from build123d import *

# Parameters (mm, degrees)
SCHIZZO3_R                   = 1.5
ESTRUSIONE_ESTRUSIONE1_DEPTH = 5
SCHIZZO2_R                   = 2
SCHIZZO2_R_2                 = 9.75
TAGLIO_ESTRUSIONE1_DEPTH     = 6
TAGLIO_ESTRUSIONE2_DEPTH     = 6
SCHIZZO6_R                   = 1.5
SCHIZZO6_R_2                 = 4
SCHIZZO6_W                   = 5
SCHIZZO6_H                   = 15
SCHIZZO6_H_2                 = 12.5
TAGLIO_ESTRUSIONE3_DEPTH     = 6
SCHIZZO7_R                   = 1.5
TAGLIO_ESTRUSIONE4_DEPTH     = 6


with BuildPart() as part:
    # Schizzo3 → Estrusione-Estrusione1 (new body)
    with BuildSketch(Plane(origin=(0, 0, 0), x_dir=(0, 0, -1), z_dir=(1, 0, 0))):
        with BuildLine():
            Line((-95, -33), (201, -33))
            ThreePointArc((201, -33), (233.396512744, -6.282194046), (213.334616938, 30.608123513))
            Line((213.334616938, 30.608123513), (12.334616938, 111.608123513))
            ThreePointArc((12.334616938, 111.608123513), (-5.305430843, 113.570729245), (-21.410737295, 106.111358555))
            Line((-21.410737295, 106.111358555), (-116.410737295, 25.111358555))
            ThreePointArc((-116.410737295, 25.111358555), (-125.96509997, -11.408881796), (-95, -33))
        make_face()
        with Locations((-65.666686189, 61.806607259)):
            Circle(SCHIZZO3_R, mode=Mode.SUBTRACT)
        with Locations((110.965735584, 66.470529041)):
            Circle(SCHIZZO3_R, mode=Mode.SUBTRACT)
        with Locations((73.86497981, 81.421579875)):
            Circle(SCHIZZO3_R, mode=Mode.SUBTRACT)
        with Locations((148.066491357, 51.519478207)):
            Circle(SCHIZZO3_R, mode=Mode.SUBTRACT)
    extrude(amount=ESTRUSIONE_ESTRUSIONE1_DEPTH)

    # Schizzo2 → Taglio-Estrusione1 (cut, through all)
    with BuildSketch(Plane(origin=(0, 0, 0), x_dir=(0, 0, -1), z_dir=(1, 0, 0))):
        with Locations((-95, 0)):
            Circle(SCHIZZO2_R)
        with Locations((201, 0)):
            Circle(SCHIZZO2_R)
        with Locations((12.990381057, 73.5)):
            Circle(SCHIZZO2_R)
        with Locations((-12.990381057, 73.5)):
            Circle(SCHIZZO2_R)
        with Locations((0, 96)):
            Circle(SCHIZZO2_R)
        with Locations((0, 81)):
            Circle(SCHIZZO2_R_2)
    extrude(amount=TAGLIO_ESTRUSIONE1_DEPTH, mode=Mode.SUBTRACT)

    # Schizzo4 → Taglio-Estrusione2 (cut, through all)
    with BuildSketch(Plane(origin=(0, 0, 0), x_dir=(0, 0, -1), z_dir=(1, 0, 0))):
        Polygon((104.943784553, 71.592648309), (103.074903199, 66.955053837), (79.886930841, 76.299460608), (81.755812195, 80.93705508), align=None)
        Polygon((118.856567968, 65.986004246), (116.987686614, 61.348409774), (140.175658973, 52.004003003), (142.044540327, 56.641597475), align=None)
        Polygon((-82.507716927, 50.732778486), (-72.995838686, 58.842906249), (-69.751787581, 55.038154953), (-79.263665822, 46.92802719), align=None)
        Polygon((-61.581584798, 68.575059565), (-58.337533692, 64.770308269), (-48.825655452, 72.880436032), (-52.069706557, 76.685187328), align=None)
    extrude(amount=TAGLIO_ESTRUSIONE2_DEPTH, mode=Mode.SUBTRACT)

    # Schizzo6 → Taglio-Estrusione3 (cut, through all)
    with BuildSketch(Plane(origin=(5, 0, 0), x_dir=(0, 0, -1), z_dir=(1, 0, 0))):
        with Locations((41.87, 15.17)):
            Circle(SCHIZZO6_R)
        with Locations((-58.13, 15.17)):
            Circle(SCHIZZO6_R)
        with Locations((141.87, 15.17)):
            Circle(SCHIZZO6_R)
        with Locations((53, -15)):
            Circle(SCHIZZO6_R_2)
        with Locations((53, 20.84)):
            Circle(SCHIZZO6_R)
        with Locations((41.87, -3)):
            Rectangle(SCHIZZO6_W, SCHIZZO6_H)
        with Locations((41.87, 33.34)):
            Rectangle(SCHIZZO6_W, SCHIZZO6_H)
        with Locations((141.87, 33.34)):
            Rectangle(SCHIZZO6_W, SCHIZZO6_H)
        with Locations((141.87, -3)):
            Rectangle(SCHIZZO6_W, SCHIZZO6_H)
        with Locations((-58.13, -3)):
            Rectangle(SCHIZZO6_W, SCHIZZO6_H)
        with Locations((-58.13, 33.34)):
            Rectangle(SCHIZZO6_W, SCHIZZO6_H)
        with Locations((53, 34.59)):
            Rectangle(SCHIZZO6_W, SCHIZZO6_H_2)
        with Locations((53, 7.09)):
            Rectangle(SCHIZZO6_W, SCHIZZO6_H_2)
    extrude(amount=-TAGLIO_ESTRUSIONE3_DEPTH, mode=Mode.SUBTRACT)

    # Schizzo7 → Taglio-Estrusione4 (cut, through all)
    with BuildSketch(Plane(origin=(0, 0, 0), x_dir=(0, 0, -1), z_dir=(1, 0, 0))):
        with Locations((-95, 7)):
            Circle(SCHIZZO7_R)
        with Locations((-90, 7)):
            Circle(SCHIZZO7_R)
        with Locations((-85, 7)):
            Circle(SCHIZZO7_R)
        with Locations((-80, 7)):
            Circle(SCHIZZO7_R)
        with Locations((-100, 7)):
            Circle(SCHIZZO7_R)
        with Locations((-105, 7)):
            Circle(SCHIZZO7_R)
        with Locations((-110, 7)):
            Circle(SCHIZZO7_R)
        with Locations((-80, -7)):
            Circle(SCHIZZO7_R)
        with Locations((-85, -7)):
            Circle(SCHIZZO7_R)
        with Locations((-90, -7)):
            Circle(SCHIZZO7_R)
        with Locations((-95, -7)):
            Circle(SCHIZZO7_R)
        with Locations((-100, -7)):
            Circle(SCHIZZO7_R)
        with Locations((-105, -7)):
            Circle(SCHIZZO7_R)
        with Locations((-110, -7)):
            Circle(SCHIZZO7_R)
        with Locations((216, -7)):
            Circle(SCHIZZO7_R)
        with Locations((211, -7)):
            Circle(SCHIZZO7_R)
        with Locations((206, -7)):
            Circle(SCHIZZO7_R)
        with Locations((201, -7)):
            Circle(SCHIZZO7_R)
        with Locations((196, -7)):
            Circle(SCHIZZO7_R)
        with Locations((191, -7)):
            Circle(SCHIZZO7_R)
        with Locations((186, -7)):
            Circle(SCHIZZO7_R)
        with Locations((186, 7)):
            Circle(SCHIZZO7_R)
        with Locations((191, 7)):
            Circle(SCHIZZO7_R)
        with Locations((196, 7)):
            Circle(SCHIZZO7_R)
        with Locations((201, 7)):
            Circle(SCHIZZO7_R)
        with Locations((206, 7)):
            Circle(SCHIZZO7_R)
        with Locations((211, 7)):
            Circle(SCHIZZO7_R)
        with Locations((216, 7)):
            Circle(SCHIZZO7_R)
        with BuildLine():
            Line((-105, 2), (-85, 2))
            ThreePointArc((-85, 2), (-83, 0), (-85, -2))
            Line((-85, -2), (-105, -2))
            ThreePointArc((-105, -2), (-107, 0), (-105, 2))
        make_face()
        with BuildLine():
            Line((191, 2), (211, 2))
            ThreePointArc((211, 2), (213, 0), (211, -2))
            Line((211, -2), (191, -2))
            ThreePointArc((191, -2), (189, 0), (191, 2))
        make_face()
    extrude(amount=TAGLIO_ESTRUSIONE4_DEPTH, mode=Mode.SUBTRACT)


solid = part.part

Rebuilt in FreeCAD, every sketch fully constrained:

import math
import FreeCAD as App
import Part
import Sketcher
Q = App.Units.Quantity


def add_polygon(sketch, points):
    """Adds a closed chain of lines whose ends are joined by coincident constraints."""
    first, n = sketch.GeometryCount, len(points)
    for a, b in zip(points, points[1:] + points[:1]):
        sketch.addGeometry(Part.LineSegment(App.Vector(*a, 0), App.Vector(*b, 0)), False)
    for i in range(n):
        sketch.addConstraint(Sketcher.Constraint("Coincident", first + i, 2, first + (i + 1) % n, 1))

doc = App.newDocument("Part")
body = doc.addObject("PartDesign::Body", "Body")

# Sketch on YZ plane
sketch1 = body.newObject("Sketcher::SketchObject", "Sketch")
sketch1.AttachmentSupport = (doc.getObject("YZ_Plane"), [""])
sketch1.MapMode = "FlatFace"
sketch1.addGeometry([
    Part.LineSegment(App.Vector(-33, 95, 0), App.Vector(-33, -201, 0)),  # 0
    Part.ArcOfCircle(Part.Circle(App.Vector(0, -201, 0), App.Vector(0, 0, 1), 33), math.radians(180), math.radians(338)),  # 1
    Part.LineSegment(App.Vector(30.6, -213.3, 0), App.Vector(111.6, -12.3, 0)),  # 2
    Part.ArcOfCircle(Part.Circle(App.Vector(81, 0, 0), App.Vector(0, 0, 1), 33), math.radians(-22), math.radians(40)),  # 3
    Part.LineSegment(App.Vector(106.1, 21.4, 0), App.Vector(25.1, 116.4, 0)),  # 4
    Part.ArcOfCircle(Part.Circle(App.Vector(0, 95, 0), App.Vector(0, 0, 1), 33), math.radians(40), math.radians(180)),  # 5
    Part.Circle(App.Vector(61.8, 65.7, 0), App.Vector(0, 0, 1), 1.5),  # 6
    Part.Circle(App.Vector(51.5, -148.1, 0), App.Vector(0, 0, 1), 1.5),  # 7
    Part.Circle(App.Vector(66.5, -111, 0), App.Vector(0, 0, 1), 1.5),  # 8
    Part.Circle(App.Vector(81.4, -73.9, 0), App.Vector(0, 0, 1), 1.5),  # 9
], False)
sketch1.addConstraint([
    Sketcher.Constraint("Tangent", 0, 2, 1, 1),
    Sketcher.Constraint("Tangent", 1, 2, 2, 1),
    Sketcher.Constraint("Tangent", 2, 2, 3, 1),
    Sketcher.Constraint("Tangent", 3, 2, 4, 1),
    Sketcher.Constraint("Tangent", 4, 2, 5, 1),
    Sketcher.Constraint("Tangent", 5, 2, 0, 1),
    Sketcher.Constraint("Vertical", 0),
    Sketcher.Constraint("Equal", 1, 3),
    Sketcher.Constraint("Equal", 3, 5),
    Sketcher.Constraint("Equal", 6, 7),
    Sketcher.Constraint("Equal", 7, 8),
    Sketcher.Constraint("Equal", 8, 9),
    Sketcher.Constraint("PointOnObject", 1, 3, -2),
    Sketcher.Constraint("PointOnObject", 3, 3, -1),
    Sketcher.Constraint("Diameter", 6, Q("3 mm")),
    Sketcher.Constraint("Radius", 1, Q("33 mm")),
    Sketcher.Constraint("DistanceY", 0, 2, 0, 1, Q("296 mm")),
    Sketcher.Constraint("DistanceY", 1, 3, -1, 1, Q("201 mm")),
    Sketcher.Constraint("DistanceX", -1, 1, 3, 3, Q("81 mm")),
    Sketcher.Constraint("DistanceX", 7, 3, 9, 3, Q("29.902102 mm")),
    Sketcher.Constraint("DistanceX", -1, 1, 7, 3, Q("51.519478 mm")),
    Sketcher.Constraint("DistanceY", 7, 3, -1, 1, Q("148.066491 mm")),
    Sketcher.Constraint("DistanceX", -1, 1, 8, 3, Q("66.470529 mm")),
    Sketcher.Constraint("DistanceY", 9, 3, -1, 1, Q("73.86498 mm")),
    Sketcher.Constraint("DistanceX", 7, 3, 6, 3, Q("10.287129 mm")),
    Sketcher.Constraint("DistanceY", 8, 3, 6, 3, Q("176.632422 mm")),
    Sketcher.Constraint("DistanceY", 1, 2, 8, 3, Q("102.368881 mm")),
])
pad1 = body.newObject("PartDesign::Pad", "Pad")
pad1.Profile = sketch1
pad1.Length = 5

# Sketch on YZ plane
sketch2 = body.newObject("Sketcher::SketchObject", "Sketch001")
sketch2.AttachmentSupport = (doc.getObject("YZ_Plane"), [""])
sketch2.MapMode = "FlatFace"
sketch2.addGeometry([
    Part.Circle(App.Vector(0, 95, 0), App.Vector(0, 0, 1), 2),  # 0
    Part.Circle(App.Vector(0, -201, 0), App.Vector(0, 0, 1), 2),  # 1
    Part.Circle(App.Vector(73.5, -13, 0), App.Vector(0, 0, 1), 2),  # 2
    Part.Circle(App.Vector(73.5, 13, 0), App.Vector(0, 0, 1), 2),  # 3
    Part.Circle(App.Vector(96, 0, 0), App.Vector(0, 0, 1), 2),  # 4
    Part.Circle(App.Vector(81, 0, 0), App.Vector(0, 0, 1), 9.8),  # 5
], False)
sketch2.addConstraint([
    Sketcher.Constraint("Equal", 0, 1),
    Sketcher.Constraint("Equal", 1, 2),
    Sketcher.Constraint("Equal", 2, 3),
    Sketcher.Constraint("Equal", 3, 4),
    Sketcher.Constraint("Symmetric", 2, 3, 3, 3, -1),
    Sketcher.Constraint("PointOnObject", 0, 3, -2),
    Sketcher.Constraint("PointOnObject", 1, 3, -2),
    Sketcher.Constraint("PointOnObject", 4, 3, -1),
    Sketcher.Constraint("PointOnObject", 5, 3, -1),
    Sketcher.Constraint("Diameter", 0, Q("4 mm")),
    Sketcher.Constraint("Diameter", 5, Q("19.5 mm")),
    Sketcher.Constraint("DistanceY", -1, 1, 0, 3, Q("95 mm")),
    Sketcher.Constraint("DistanceY", 1, 3, -1, 1, Q("201 mm")),
    Sketcher.Constraint("DistanceX", -1, 1, 4, 3, Q("96 mm")),
    Sketcher.Constraint("DistanceX", -1, 1, 5, 3, Q("81 mm")),
    Sketcher.Constraint("DistanceX", -1, 1, 2, 3, Q("73.5 mm")),
    Sketcher.Constraint("DistanceY", 2, 3, -1, 1, Q("12.990381 mm")),
])
pocket1 = body.newObject("PartDesign::Pocket", "Pocket")
pocket1.Profile = sketch2
pocket1.Type = "ThroughAll"
pocket1.Reversed = True

# Sketch on YZ plane
sketch3 = body.newObject("Sketcher::SketchObject", "Sketch002")
sketch3.AttachmentSupport = (doc.getObject("YZ_Plane"), [""])
sketch3.MapMode = "FlatFace"
add_polygon(sketch3, [(67, -103.1), (71.6, -104.9), (80.9, -81.8), (76.3, -79.9)])  # lines 0-3
add_polygon(sketch3, [(66, -118.9), (61.3, -117), (52, -140.2), (56.6, -142)])  # lines 4-7
add_polygon(sketch3, [(58.8, 73), (50.7, 82.5), (46.9, 79.3), (55, 69.8)])  # lines 8-11
add_polygon(sketch3, [(68.6, 61.6), (64.8, 58.3), (72.9, 48.8), (76.7, 52.1)])  # lines 12-15
sketch3.addConstraint([
    Sketcher.Constraint("Perpendicular", 0, 1),
    Sketcher.Constraint("Perpendicular", 1, 2),
    Sketcher.Constraint("Perpendicular", 2, 3),
    Sketcher.Constraint("Perpendicular", 3, 4),
    Sketcher.Constraint("Perpendicular", 4, 5),
    Sketcher.Constraint("Perpendicular", 5, 6),
    Sketcher.Constraint("Perpendicular", 6, 7),
    Sketcher.Constraint("Perpendicular", 8, 9),
    Sketcher.Constraint("Perpendicular", 9, 10),
    Sketcher.Constraint("Perpendicular", 10, 11),
    Sketcher.Constraint("Parallel", 11, 12),
    Sketcher.Constraint("Perpendicular", 12, 13),
    Sketcher.Constraint("Perpendicular", 13, 14),
    Sketcher.Constraint("Perpendicular", 14, 15),
    Sketcher.Constraint("Equal", 2, 4),
    Sketcher.Constraint("Equal", 3, 5),
    Sketcher.Constraint("Equal", 6, 9),
    Sketcher.Constraint("Equal", 11, 12),
    Sketcher.Constraint("Equal", 10, 13),
    Sketcher.Constraint("Distance", 0, Q("5 mm")),
    Sketcher.Constraint("Distance", 1, Q("25 mm")),
    Sketcher.Constraint("Distance", 8, Q("12.5 mm")),
    Sketcher.Constraint("DistanceX", 3, 2, 1, 2, Q("13.982001 mm")),
    Sketcher.Constraint("DistanceY", 0, 2, 8, 2, Q("187.451501 mm")),
    Sketcher.Constraint("DistanceX", 10, 2, 1, 2, Q("25.8989 mm")),
    Sketcher.Constraint("DistanceY", 1, 2, 10, 2, Q("151.5076 mm")),
    Sketcher.Constraint("DistanceX", -1, 1, 0, 2, Q("71.592648 mm")),
    Sketcher.Constraint("DistanceY", 2, 2, -1, 1, Q("79.886931 mm")),
    Sketcher.Constraint("DistanceX", -1, 1, 4, 2, Q("61.34841 mm")),
    Sketcher.Constraint("DistanceY", 5, 2, -1, 1, Q("140.175659 mm")),
    Sketcher.Constraint("DistanceX", -1, 1, 12, 2, Q("64.770308 mm")),
    Sketcher.Constraint("DistanceY", 13, 2, 9, 2, Q("30.43801 mm")),
])
pocket2 = body.newObject("PartDesign::Pocket", "Pocket001")
pocket2.Profile = sketch3
pocket2.Type = "ThroughAll"
pocket2.Reversed = True

# Sketch on YZ plane
sketch4 = body.newObject("Sketcher::SketchObject", "Sketch003")
sketch4.AttachmentSupport = (doc.getObject("YZ_Plane"), [""])
sketch4.MapMode = "FlatFace"
sketch4.AttachmentOffset = App.Placement(App.Vector(0, 0, 5), App.Rotation())
sketch4.addGeometry(Part.Circle(App.Vector(15.2, -41.9, 0), App.Vector(0, 0, 1), 1.5), False)  # 0
sketch4.addGeometry(Part.Circle(App.Vector(15.2, 58.1, 0), App.Vector(0, 0, 1), 1.5), False)  # 1
sketch4.addGeometry(Part.Circle(App.Vector(15.2, -141.9, 0), App.Vector(0, 0, 1), 1.5), False)  # 2
sketch4.addGeometry(Part.Circle(App.Vector(-15, -53, 0), App.Vector(0, 0, 1), 4), False)  # 3
sketch4.addGeometry(Part.Circle(App.Vector(20.8, -53, 0), App.Vector(0, 0, 1), 1.5), False)  # 4
add_polygon(sketch4, [(4.5, -39.4), (-10.5, -39.4), (-10.5, -44.4), (4.5, -44.4)])  # lines 5-8
add_polygon(sketch4, [(40.8, -39.4), (25.8, -39.4), (25.8, -44.4), (40.8, -44.4)])  # lines 9-12
add_polygon(sketch4, [(40.8, -139.4), (25.8, -139.4), (25.8, -144.4), (40.8, -144.4)])  # lines 13-16
add_polygon(sketch4, [(4.5, -139.4), (-10.5, -139.4), (-10.5, -144.4), (4.5, -144.4)])  # lines 17-20
add_polygon(sketch4, [(4.5, 60.6), (-10.5, 60.6), (-10.5, 55.6), (4.5, 55.6)])  # lines 21-24
add_polygon(sketch4, [(40.8, 60.6), (25.8, 60.6), (25.8, 55.6), (40.8, 55.6)])  # lines 25-28
add_polygon(sketch4, [(40.8, -50.5), (28.3, -50.5), (28.3, -55.5), (40.8, -55.5)])  # lines 29-32
add_polygon(sketch4, [(13.3, -50.5), (0.8, -50.5), (0.8, -55.5), (13.3, -55.5)])  # lines 33-36
sketch4.addConstraint([
    Sketcher.Constraint("Horizontal", 5),
    Sketcher.Constraint("Vertical", 6),
    Sketcher.Constraint("Horizontal", 7),
    Sketcher.Constraint("Vertical", 8),
    Sketcher.Constraint("Horizontal", 9),
    Sketcher.Constraint("Vertical", 10),
    Sketcher.Constraint("Horizontal", 11),
    Sketcher.Constraint("Vertical", 12),
    Sketcher.Constraint("Horizontal", 13),
    Sketcher.Constraint("Vertical", 14),
    Sketcher.Constraint("Horizontal", 15),
    Sketcher.Constraint("Vertical", 16),
    Sketcher.Constraint("Horizontal", 17),
    Sketcher.Constraint("Vertical", 18),
    Sketcher.Constraint("Horizontal", 19),
    Sketcher.Constraint("Vertical", 20),
    Sketcher.Constraint("Horizontal", 21),
    Sketcher.Constraint("Vertical", 22),
    Sketcher.Constraint("Horizontal", 23),
    Sketcher.Constraint("Vertical", 24),
    Sketcher.Constraint("Horizontal", 25),
    Sketcher.Constraint("Vertical", 26),
    Sketcher.Constraint("Horizontal", 27),
    Sketcher.Constraint("Vertical", 28),
    Sketcher.Constraint("Horizontal", 29),
    Sketcher.Constraint("Vertical", 30),
    Sketcher.Constraint("Horizontal", 31),
    Sketcher.Constraint("Vertical", 32),
    Sketcher.Constraint("Horizontal", 33),
    Sketcher.Constraint("Vertical", 34),
    Sketcher.Constraint("Horizontal", 35),
    Sketcher.Constraint("Vertical", 36),
    Sketcher.Constraint("Equal", 0, 1),
    Sketcher.Constraint("Equal", 1, 2),
    Sketcher.Constraint("Equal", 2, 4),
    Sketcher.Constraint("Horizontal", 3, 3, 4, 3),
    Sketcher.Constraint("Horizontal", 8, 2, 9, 2),
    Sketcher.Constraint("Horizontal", 7, 2, 10, 2),
    Sketcher.Constraint("Horizontal", 16, 2, 17, 2),
    Sketcher.Constraint("Horizontal", 15, 2, 18, 2),
    Sketcher.Constraint("Horizontal", 24, 2, 25, 2),
    Sketcher.Constraint("Horizontal", 23, 2, 26, 2),
    Sketcher.Constraint("Horizontal", 32, 2, 33, 2),
    Sketcher.Constraint("Horizontal", 31, 2, 34, 2),
    Sketcher.Constraint("Vertical", 0, 3, 1, 3),
    Sketcher.Constraint("Vertical", 1, 3, 2, 3),
    Sketcher.Constraint("Vertical", 10, 2, 13, 2),
    Sketcher.Constraint("Vertical", 12, 2, 15, 2),
    Sketcher.Constraint("Vertical", 6, 2, 17, 2),
    Sketcher.Constraint("Vertical", 8, 2, 19, 2),
    Sketcher.Constraint("Vertical", 18, 2, 21, 2),
    Sketcher.Constraint("Vertical", 20, 2, 23, 2),
    Sketcher.Constraint("Vertical", 14, 2, 25, 2),
    Sketcher.Constraint("Vertical", 16, 2, 27, 2),
    Sketcher.Constraint("Vertical", 28, 2, 31, 2),
    Sketcher.Constraint("Equal", 7, 9),
    Sketcher.Constraint("Equal", 31, 33),
    Sketcher.Constraint("Equal", 12, 14),
    Sketcher.Constraint("Equal", 20, 22),
    Sketcher.Constraint("Equal", 28, 30),
    Sketcher.Constraint("Diameter", 0, Q("3 mm")),
    Sketcher.Constraint("Diameter", 3, Q("8 mm")),
    Sketcher.Constraint("DistanceX", 5, 2, 5, 1, Q("15 mm")),
    Sketcher.Constraint("DistanceY", 6, 2, 6, 1, Q("5 mm")),
    Sketcher.Constraint("DistanceX", 29, 2, 29, 1, Q("12.5 mm")),
    Sketcher.Constraint("DistanceX", 3, 3, -1, 1, Q("15 mm")),
    Sketcher.Constraint("DistanceY", 3, 3, -1, 1, Q("53 mm")),
    Sketcher.Constraint("DistanceY", 0, 3, 1, 3, Q("100 mm")),
    Sketcher.Constraint("DistanceY", 2, 3, 0, 3, Q("100 mm")),
    Sketcher.Constraint("DistanceX", 4, 3, 9, 2, Q("5 mm")),
    Sketcher.Constraint("DistanceY", 13, 2, 10, 2, Q("95 mm")),
    Sketcher.Constraint("DistanceY", 5, 2, 21, 2, Q("100 mm")),
    Sketcher.Constraint("DistanceX", 5, 2, -1, 1, Q("10.5 mm")),
    Sketcher.Constraint("DistanceY", 29, 2, -1, 1, Q("50.5 mm")),
    Sketcher.Constraint("DistanceY", 0, 3, 5, 2, Q("2.5 mm")),
    Sketcher.Constraint("DistanceX", 35, 2, 4, 3, Q("7.5 mm")),
    Sketcher.Constraint("DistanceX", -1, 1, 0, 3, Q("15.17 mm")),
    Sketcher.Constraint("DistanceY", 0, 3, -1, 1, Q("41.87 mm")),
    Sketcher.Constraint("DistanceX", -1, 1, 4, 3, Q("20.84 mm")),
])
pocket3 = body.newObject("PartDesign::Pocket", "Pocket002")
pocket3.Profile = sketch4
pocket3.Type = "ThroughAll"

# Sketch on YZ plane
sketch5 = body.newObject("Sketcher::SketchObject", "Sketch004")
sketch5.AttachmentSupport = (doc.getObject("YZ_Plane"), [""])
sketch5.MapMode = "FlatFace"
sketch5.addGeometry([
    Part.Circle(App.Vector(7, 95, 0), App.Vector(0, 0, 1), 1.5),  # 0
    Part.Circle(App.Vector(7, 90, 0), App.Vector(0, 0, 1), 1.5),  # 1
    Part.Circle(App.Vector(7, 85, 0), App.Vector(0, 0, 1), 1.5),  # 2
    Part.Circle(App.Vector(7, 80, 0), App.Vector(0, 0, 1), 1.5),  # 3
    Part.Circle(App.Vector(7, 100, 0), App.Vector(0, 0, 1), 1.5),  # 4
    Part.Circle(App.Vector(7, 105, 0), App.Vector(0, 0, 1), 1.5),  # 5
    Part.Circle(App.Vector(7, 110, 0), App.Vector(0, 0, 1), 1.5),  # 6
    Part.Circle(App.Vector(-7, 80, 0), App.Vector(0, 0, 1), 1.5),  # 7
    Part.Circle(App.Vector(-7, 85, 0), App.Vector(0, 0, 1), 1.5),  # 8
    Part.Circle(App.Vector(-7, 90, 0), App.Vector(0, 0, 1), 1.5),  # 9
    Part.Circle(App.Vector(-7, 95, 0), App.Vector(0, 0, 1), 1.5),  # 10
    Part.Circle(App.Vector(-7, 100, 0), App.Vector(0, 0, 1), 1.5),  # 11
    Part.Circle(App.Vector(-7, 105, 0), App.Vector(0, 0, 1), 1.5),  # 12
    Part.Circle(App.Vector(-7, 110, 0), App.Vector(0, 0, 1), 1.5),  # 13
    Part.Circle(App.Vector(-7, -216, 0), App.Vector(0, 0, 1), 1.5),  # 14
    Part.Circle(App.Vector(-7, -211, 0), App.Vector(0, 0, 1), 1.5),  # 15
    Part.Circle(App.Vector(-7, -206, 0), App.Vector(0, 0, 1), 1.5),  # 16
    Part.Circle(App.Vector(-7, -201, 0), App.Vector(0, 0, 1), 1.5),  # 17
    Part.Circle(App.Vector(-7, -196, 0), App.Vector(0, 0, 1), 1.5),  # 18
    Part.Circle(App.Vector(-7, -191, 0), App.Vector(0, 0, 1), 1.5),  # 19
    Part.Circle(App.Vector(-7, -186, 0), App.Vector(0, 0, 1), 1.5),  # 20
    Part.Circle(App.Vector(7, -186, 0), App.Vector(0, 0, 1), 1.5),  # 21
    Part.Circle(App.Vector(7, -191, 0), App.Vector(0, 0, 1), 1.5),  # 22
    Part.Circle(App.Vector(7, -196, 0), App.Vector(0, 0, 1), 1.5),  # 23
    Part.Circle(App.Vector(7, -201, 0), App.Vector(0, 0, 1), 1.5),  # 24
    Part.Circle(App.Vector(7, -206, 0), App.Vector(0, 0, 1), 1.5),  # 25
    Part.Circle(App.Vector(7, -211, 0), App.Vector(0, 0, 1), 1.5),  # 26
    Part.Circle(App.Vector(7, -216, 0), App.Vector(0, 0, 1), 1.5),  # 27
    Part.LineSegment(App.Vector(2, 85, 0), App.Vector(2, 105, 0)),  # 28
    Part.ArcOfCircle(Part.Circle(App.Vector(0, 105, 0), App.Vector(0, 0, 1), 2), math.radians(0), math.radians(180)),  # 29
    Part.LineSegment(App.Vector(-2, 105, 0), App.Vector(-2, 85, 0)),  # 30
    Part.ArcOfCircle(Part.Circle(App.Vector(0, 85, 0), App.Vector(0, 0, 1), 2), math.radians(180), math.radians(360)),  # 31
    Part.LineSegment(App.Vector(2, -211, 0), App.Vector(2, -191, 0)),  # 32
    Part.ArcOfCircle(Part.Circle(App.Vector(0, -191, 0), App.Vector(0, 0, 1), 2), math.radians(0), math.radians(180)),  # 33
    Part.LineSegment(App.Vector(-2, -191, 0), App.Vector(-2, -211, 0)),  # 34
    Part.ArcOfCircle(Part.Circle(App.Vector(0, -211, 0), App.Vector(0, 0, 1), 2), math.radians(180), math.radians(360)),  # 35
], False)
sketch5.addConstraint([
    Sketcher.Constraint("Tangent", 28, 2, 29, 1),
    Sketcher.Constraint("Tangent", 29, 2, 30, 1),
    Sketcher.Constraint("Tangent", 30, 2, 31, 1),
    Sketcher.Constraint("Tangent", 31, 2, 28, 1),
    Sketcher.Constraint("Tangent", 32, 2, 33, 1),
    Sketcher.Constraint("Tangent", 33, 2, 34, 1),
    Sketcher.Constraint("Tangent", 34, 2, 35, 1),
    Sketcher.Constraint("Tangent", 35, 2, 32, 1),
    Sketcher.Constraint("Vertical", 28),
    Sketcher.Constraint("Vertical", 30),
    Sketcher.Constraint("Vertical", 32),
    Sketcher.Constraint("Vertical", 34),
    Sketcher.Constraint("Equal", 0, 1),
    Sketcher.Constraint("Equal", 1, 2),
    Sketcher.Constraint("Equal", 2, 3),
    Sketcher.Constraint("Equal", 3, 4),
    Sketcher.Constraint("Equal", 4, 5),
    Sketcher.Constraint("Equal", 5, 6),
    Sketcher.Constraint("Equal", 6, 7),
    Sketcher.Constraint("Equal", 7, 8),
    Sketcher.Constraint("Equal", 8, 9),
    Sketcher.Constraint("Equal", 9, 10),
    Sketcher.Constraint("Equal", 10, 11),
    Sketcher.Constraint("Equal", 11, 12),
    Sketcher.Constraint("Equal", 12, 13),
    Sketcher.Constraint("Equal", 13, 14),
    Sketcher.Constraint("Equal", 14, 15),
    Sketcher.Constraint("Equal", 15, 16),
    Sketcher.Constraint("Equal", 16, 17),
    Sketcher.Constraint("Equal", 17, 18),
    Sketcher.Constraint("Equal", 18, 19),
    Sketcher.Constraint("Equal", 19, 20),
    Sketcher.Constraint("Equal", 20, 21),
    Sketcher.Constraint("Equal", 21, 22),
    Sketcher.Constraint("Equal", 22, 23),
    Sketcher.Constraint("Equal", 23, 24),
    Sketcher.Constraint("Equal", 24, 25),
    Sketcher.Constraint("Equal", 25, 26),
    Sketcher.Constraint("Equal", 26, 27),
    Sketcher.Constraint("Equal", 31, 33),
    Sketcher.Constraint("Symmetric", 3, 3, 7, 3, -2),
    Sketcher.Constraint("Symmetric", 2, 3, 8, 3, -2),
    Sketcher.Constraint("Symmetric", 1, 3, 9, 3, -2),
    Sketcher.Constraint("Symmetric", 0, 3, 10, 3, -2),
    Sketcher.Constraint("Symmetric", 4, 3, 11, 3, -2),
    Sketcher.Constraint("Symmetric", 5, 3, 12, 3, -2),
    Sketcher.Constraint("Symmetric", 6, 3, 13, 3, -2),
    Sketcher.Constraint("Symmetric", 20, 3, 21, 3, -2),
    Sketcher.Constraint("Symmetric", 19, 3, 22, 3, -2),
    Sketcher.Constraint("Symmetric", 18, 3, 23, 3, -2),
    Sketcher.Constraint("Symmetric", 17, 3, 24, 3, -2),
    Sketcher.Constraint("Symmetric", 16, 3, 25, 3, -2),
    Sketcher.Constraint("Symmetric", 15, 3, 26, 3, -2),
    Sketcher.Constraint("Symmetric", 14, 3, 27, 3, -2),
    Sketcher.Constraint("PointOnObject", 29, 3, -2),
    Sketcher.Constraint("PointOnObject", 33, 3, -2),
    Sketcher.Constraint("Horizontal", 12, 3, 29, 3),
    Sketcher.Constraint("Horizontal", 8, 3, 31, 3),
    Sketcher.Constraint("Horizontal", 22, 3, 33, 3),
    Sketcher.Constraint("Horizontal", 26, 3, 35, 3),
    Sketcher.Constraint("Vertical", 0, 3, 1, 3),
    Sketcher.Constraint("Vertical", 1, 3, 2, 3),
    Sketcher.Constraint("Vertical", 2, 3, 3, 3),
    Sketcher.Constraint("Vertical", 3, 3, 4, 3),
    Sketcher.Constraint("Vertical", 4, 3, 5, 3),
    Sketcher.Constraint("Vertical", 5, 3, 6, 3),
    Sketcher.Constraint("Vertical", 13, 3, 14, 3),
    Sketcher.Constraint("Vertical", 14, 3, 15, 3),
    Sketcher.Constraint("Vertical", 15, 3, 16, 3),
    Sketcher.Constraint("Vertical", 16, 3, 17, 3),
    Sketcher.Constraint("Vertical", 17, 3, 18, 3),
    Sketcher.Constraint("Vertical", 18, 3, 19, 3),
    Sketcher.Constraint("Vertical", 19, 3, 20, 3),
    Sketcher.Constraint("Equal", 30, 32),
    Sketcher.Constraint("Diameter", 0, Q("3 mm")),
    Sketcher.Constraint("Radius", 29, Q("2 mm")),
    Sketcher.Constraint("DistanceY", 28, 1, 28, 2, Q("20 mm")),
    Sketcher.Constraint("DistanceX", -1, 1, 0, 3, Q("7 mm")),
    Sketcher.Constraint("DistanceY", -1, 1, 0, 3, Q("95 mm")),
    Sketcher.Constraint("DistanceY", -1, 1, 1, 3, Q("90 mm")),
    Sketcher.Constraint("DistanceY", -1, 1, 2, 3, Q("85 mm")),
    Sketcher.Constraint("DistanceY", -1, 1, 3, 3, Q("80 mm")),
    Sketcher.Constraint("DistanceY", -1, 1, 4, 3, Q("100 mm")),
    Sketcher.Constraint("DistanceY", -1, 1, 6, 3, Q("110 mm")),
    Sketcher.Constraint("DistanceY", 14, 3, -1, 1, Q("216 mm")),
    Sketcher.Constraint("DistanceY", 15, 3, -1, 1, Q("211 mm")),
    Sketcher.Constraint("DistanceY", 16, 3, -1, 1, Q("206 mm")),
    Sketcher.Constraint("DistanceY", 17, 3, -1, 1, Q("201 mm")),
    Sketcher.Constraint("DistanceY", 18, 3, -1, 1, Q("196 mm")),
    Sketcher.Constraint("DistanceY", 20, 3, -1, 1, Q("186 mm")),
])
pocket4 = body.newObject("PartDesign::Pocket", "Pocket003")
pocket4.Profile = sketch5
pocket4.Type = "ThroughAll"
pocket4.Reversed = True

doc.recompute()
